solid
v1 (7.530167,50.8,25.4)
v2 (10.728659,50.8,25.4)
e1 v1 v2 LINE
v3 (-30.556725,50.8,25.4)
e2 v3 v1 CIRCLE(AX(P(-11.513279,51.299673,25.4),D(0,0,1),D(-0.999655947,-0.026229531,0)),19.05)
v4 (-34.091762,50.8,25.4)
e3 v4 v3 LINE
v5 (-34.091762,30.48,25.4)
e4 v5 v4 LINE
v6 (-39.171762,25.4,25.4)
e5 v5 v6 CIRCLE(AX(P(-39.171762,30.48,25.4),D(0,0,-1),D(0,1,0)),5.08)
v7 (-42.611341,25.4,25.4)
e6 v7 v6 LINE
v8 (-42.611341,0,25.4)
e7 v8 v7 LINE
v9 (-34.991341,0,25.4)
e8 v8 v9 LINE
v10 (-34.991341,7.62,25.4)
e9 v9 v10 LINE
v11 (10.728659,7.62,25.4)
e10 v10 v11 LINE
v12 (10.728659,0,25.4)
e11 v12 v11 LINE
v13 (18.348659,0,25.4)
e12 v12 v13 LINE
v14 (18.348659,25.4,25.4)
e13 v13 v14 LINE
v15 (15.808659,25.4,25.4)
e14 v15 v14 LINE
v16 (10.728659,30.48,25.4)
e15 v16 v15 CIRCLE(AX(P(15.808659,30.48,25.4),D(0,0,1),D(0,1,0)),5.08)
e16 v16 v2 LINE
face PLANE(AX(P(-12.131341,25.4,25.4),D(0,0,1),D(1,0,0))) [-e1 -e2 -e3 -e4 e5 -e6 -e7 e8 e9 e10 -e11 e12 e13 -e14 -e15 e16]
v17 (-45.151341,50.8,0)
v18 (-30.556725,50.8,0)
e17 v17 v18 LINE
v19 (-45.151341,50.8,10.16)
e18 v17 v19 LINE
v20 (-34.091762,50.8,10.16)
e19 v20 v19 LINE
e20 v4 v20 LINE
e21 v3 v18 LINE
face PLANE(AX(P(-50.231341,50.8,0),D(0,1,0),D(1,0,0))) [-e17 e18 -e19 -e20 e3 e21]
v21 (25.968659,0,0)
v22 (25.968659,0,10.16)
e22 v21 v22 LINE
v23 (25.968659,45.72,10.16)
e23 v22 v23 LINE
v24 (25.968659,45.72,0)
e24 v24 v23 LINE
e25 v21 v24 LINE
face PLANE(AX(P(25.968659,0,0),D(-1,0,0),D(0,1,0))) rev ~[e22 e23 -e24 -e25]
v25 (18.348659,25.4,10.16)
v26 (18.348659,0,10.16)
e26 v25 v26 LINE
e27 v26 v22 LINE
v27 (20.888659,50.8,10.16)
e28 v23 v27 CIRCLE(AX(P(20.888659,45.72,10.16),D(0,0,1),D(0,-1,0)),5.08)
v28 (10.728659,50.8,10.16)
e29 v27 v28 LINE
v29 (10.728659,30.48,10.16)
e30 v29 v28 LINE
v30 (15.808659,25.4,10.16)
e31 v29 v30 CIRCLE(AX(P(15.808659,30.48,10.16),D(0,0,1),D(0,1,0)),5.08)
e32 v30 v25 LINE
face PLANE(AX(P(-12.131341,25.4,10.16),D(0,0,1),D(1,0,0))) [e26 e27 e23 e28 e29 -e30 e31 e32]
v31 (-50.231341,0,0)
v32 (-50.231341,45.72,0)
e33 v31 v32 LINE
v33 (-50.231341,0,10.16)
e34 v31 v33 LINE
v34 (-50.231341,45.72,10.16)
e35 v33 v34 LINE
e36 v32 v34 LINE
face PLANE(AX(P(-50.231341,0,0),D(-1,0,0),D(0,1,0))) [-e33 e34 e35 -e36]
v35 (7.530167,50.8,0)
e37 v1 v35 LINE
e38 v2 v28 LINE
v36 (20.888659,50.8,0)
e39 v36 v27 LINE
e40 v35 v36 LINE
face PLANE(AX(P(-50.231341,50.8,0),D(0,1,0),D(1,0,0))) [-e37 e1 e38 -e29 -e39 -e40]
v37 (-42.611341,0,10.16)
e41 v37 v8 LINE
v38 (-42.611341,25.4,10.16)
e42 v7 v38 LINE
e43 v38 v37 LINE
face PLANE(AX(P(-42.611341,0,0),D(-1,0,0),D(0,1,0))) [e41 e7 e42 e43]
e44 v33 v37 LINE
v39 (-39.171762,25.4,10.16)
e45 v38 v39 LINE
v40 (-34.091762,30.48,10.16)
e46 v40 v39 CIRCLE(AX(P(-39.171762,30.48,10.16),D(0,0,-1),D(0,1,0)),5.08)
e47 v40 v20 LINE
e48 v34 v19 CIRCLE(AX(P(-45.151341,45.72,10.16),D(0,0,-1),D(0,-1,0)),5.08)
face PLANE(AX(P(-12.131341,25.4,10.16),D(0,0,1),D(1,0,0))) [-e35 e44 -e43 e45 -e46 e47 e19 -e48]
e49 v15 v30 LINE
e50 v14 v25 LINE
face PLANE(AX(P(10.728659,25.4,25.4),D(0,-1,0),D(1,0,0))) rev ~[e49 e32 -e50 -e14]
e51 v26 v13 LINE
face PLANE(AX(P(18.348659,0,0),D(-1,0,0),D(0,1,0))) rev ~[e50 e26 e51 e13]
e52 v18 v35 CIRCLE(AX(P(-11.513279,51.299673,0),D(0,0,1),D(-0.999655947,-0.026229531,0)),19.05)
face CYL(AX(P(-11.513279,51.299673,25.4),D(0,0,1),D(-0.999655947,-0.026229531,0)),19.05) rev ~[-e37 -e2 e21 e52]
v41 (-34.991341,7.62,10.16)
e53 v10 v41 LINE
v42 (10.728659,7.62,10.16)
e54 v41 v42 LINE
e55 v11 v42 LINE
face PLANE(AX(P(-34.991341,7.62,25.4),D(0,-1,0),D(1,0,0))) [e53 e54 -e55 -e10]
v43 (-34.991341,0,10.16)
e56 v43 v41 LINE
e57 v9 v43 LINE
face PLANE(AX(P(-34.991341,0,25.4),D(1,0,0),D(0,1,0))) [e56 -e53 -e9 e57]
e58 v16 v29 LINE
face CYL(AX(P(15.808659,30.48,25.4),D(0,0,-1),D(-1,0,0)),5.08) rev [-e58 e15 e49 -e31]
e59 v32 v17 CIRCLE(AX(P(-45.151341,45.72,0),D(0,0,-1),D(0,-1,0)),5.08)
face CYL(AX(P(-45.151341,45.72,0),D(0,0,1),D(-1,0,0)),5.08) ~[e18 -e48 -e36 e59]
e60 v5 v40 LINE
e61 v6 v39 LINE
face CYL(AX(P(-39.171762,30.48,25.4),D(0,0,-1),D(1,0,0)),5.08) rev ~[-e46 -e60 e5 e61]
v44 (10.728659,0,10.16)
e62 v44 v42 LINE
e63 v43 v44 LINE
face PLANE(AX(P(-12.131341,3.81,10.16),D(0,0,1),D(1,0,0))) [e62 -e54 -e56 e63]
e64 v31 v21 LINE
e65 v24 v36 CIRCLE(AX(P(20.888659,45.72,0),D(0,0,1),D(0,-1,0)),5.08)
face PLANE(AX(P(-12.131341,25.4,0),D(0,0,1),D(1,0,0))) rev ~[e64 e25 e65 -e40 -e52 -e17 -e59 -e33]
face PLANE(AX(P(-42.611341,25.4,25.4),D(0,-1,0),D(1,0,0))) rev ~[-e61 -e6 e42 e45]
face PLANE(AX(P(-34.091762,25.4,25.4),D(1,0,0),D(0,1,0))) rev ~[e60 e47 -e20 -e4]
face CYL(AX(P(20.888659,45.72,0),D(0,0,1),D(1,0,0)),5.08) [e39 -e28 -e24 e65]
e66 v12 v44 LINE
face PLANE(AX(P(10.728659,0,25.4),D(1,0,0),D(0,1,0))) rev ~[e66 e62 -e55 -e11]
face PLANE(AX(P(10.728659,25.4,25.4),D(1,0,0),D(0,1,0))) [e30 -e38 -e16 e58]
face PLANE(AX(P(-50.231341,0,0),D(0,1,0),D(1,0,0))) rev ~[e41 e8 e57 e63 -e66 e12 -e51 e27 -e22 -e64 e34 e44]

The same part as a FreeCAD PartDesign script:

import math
import FreeCAD as App
import Part
import Sketcher

V = App.Vector
Q = App.Units.Quantity


def edges_at(feature, points):
    """Names of the edges that pass closest to the given points."""
    edges = feature.Shape.Edges
    near = lambda p: min(range(len(edges)), key=lambda i: edges[i].distToShape(Part.Vertex(*p))[0])
    return sorted({f"Edge{near(p) + 1}" for p in points})

doc = App.newDocument("Part")
params = doc.addObject("Spreadsheet::Sheet", "Params")
for row, (alias, value) in enumerate([
    ("sketch1_width", "3 in"),
    ("sketch1_height", "2 in"),
    ("pad1_length", "0.4 in"),
    ("sketch2_height", "2 in"),
    ("sketch2_width", "2.4 in"),
    ("pad2_length", "1 in"),
    ("sketch3_radius", "0.75 in"),
    ("sketch4_height", "1 in"),
    ("sketch4_width", "0.3 in"),
    ("sketch4_width2", "1.8 in"),
    ("pocket2_length", "0.6 in"),
    ("fillet_radius", "0.2 in"),
    ("fillet2_radius", "0.2 in"),
    ("fillet3_radius", "0.2 in"),
], start=1):
    params.set(f"A{row}", alias)
    params.set(f"B{row}", "=" + value)
    params.setAlias(f"B{row}", alias)

body = doc.addObject("PartDesign::Body", "Body")

sketch1 = doc.addObject("Sketcher::SketchObject", "Sketch")
body.addObject(sketch1)
sketch1.AttachmentSupport = (doc.XY_Plane, [""])
sketch1.MapMode = "FlatFace"
sketch1.addGeometry(Part.LineSegment(V(-50, 51, 0), V(-50, 0, 0)), False)
sketch1.addGeometry(Part.LineSegment(V(-50, 0, 0), V(26, 0, 0)), False)
sketch1.addGeometry(Part.LineSegment(V(26, 0, 0), V(26, 51, 0)), False)
sketch1.addGeometry(Part.LineSegment(V(26, 51, 0), V(-50, 51, 0)), False)
sketch1.addConstraint(Sketcher.Constraint("Coincident", 0, 2, 1, 1))
sketch1.addConstraint(Sketcher.Constraint("Coincident", 1, 2, 2, 1))
sketch1.addConstraint(Sketcher.Constraint("Coincident", 2, 2, 3, 1))
sketch1.addConstraint(Sketcher.Constraint("Coincident", 3, 2, 0, 1))
sketch1.addConstraint(Sketcher.Constraint("Vertical", 0))
sketch1.addConstraint(Sketcher.Constraint("Horizontal", 1))
sketch1.addConstraint(Sketcher.Constraint("Vertical", 2))
sketch1.addConstraint(Sketcher.Constraint("Horizontal", 3))
sketch1.addConstraint(Sketcher.Constraint("PointOnObject", 0, 2, -1))
sketch1.addConstraint(Sketcher.Constraint("DistanceX", 1, 1, 1, 2, Q("3 in")))
sketch1.addConstraint(Sketcher.Constraint("DistanceY", 0, 2, 0, 1, Q("2 in")))
sketch1.addConstraint(Sketcher.Constraint("DistanceX", 0, 2, -1, 1, 50.231341))
sketch1.setExpression("Constraints[9]", "Params.sketch1_width")
sketch1.setExpression("Constraints[10]", "Params.sketch1_height")
pad1 = doc.addObject("PartDesign::Pad", "Pad")
body.addObject(pad1)
pad1.Profile = sketch1
pad1.setExpression("Length", "Params.pad1_length")

sketch2 = doc.addObject("Sketcher::SketchObject", "Sketch001")
body.addObject(sketch2)
sketch2.AttachmentSupport = (doc.XY_Plane, [""])
sketch2.MapMode = "FlatFace"
sketch2.addGeometry(Part.LineSegment(V(-43, 51, 0), V(-43, 0, 0)), False)
sketch2.addGeometry(Part.LineSegment(V(-43, 0, 0), V(18, 0, 0)), False)
sketch2.addGeometry(Part.LineSegment(V(18, 0, 0), V(18, 51, 0)), False)
sketch2.addGeometry(Part.LineSegment(V(18, 51, 0), V(-43, 51, 0)), False)
sketch2.addConstraint(Sketcher.Constraint("Coincident", 0, 2, 1, 1))
sketch2.addConstraint(Sketcher.Constraint("Coincident", 1, 2, 2, 1))
sketch2.addConstraint(Sketcher.Constraint("Coincident", 2, 2, 3, 1))
sketch2.addConstraint(Sketcher.Constraint("Coincident", 3, 2, 0, 1))
sketch2.addConstraint(Sketcher.Constraint("Vertical", 0))
sketch2.addConstraint(Sketcher.Constraint("Horizontal", 1))
sketch2.addConstraint(Sketcher.Constraint("Vertical", 2))
sketch2.addConstraint(Sketcher.Constraint("Horizontal", 3))
sketch2.addConstraint(Sketcher.Constraint("PointOnObject", 0, 2, -1))
sketch2.addConstraint(Sketcher.Constraint("DistanceY", 0, 2, 0, 1, Q("2 in")))
sketch2.addConstraint(Sketcher.Constraint("DistanceX", 1, 1, 1, 2, Q("2.4 in")))
sketch2.addConstraint(Sketcher.Constraint("DistanceX", 0, 2, -1, 1, 42.611341))
sketch2.setExpression("Constraints[9]", "Params.sketch2_height")
sketch2.setExpression("Constraints[10]", "Params.sketch2_width")
pad2 = doc.addObject("PartDesign::Pad", "Pad001")
body.addObject(pad2)
pad2.Profile = sketch2
pad2.setExpression("Length", "Params.pad2_length")

sketch3 = doc.addObject("Sketcher::SketchObject", "Sketch002")
body.addObject(sketch3)
sketch3.AttachmentSupport = (doc.XY_Plane, [""])
sketch3.MapMode = "FlatFace"
sketch3.AttachmentOffset = App.Placement(V(0, 0, 1 * 25.4), App.Rotation())
sketch3.addGeometry(Part.ArcOfCircle(Part.Circle(V(-11.51, 51.3, 0), V(0, 0, 1), 19.05), math.radians(-178), math.radians(-2)), False)
sketch3.addGeometry(Part.ArcOfCircle(Part.Circle(V(-11.51, 51.3, 0), V(0, 0, 1), 19.05), math.radians(-1.5), math.radians(0)), False)
sketch3.addGeometry(Part.ArcOfCircle(Part.Circle(V(-11.51, 51.3, 0), V(0, 0, 1), 19.05), math.radians(0), math.radians(182)), False)
sketch3.addConstraint(Sketcher.Constraint("Tangent", 0, 2, 1, 1))
sketch3.addConstraint(Sketcher.Constraint("Tangent", 1, 2, 2, 1))
sketch3.addConstraint(Sketcher.Constraint("Coincident", 2, 2, 0, 1))
sketch3.addConstraint(Sketcher.Constraint("Equal", 0, 1))
sketch3.addConstraint(Sketcher.Constraint("Horizontal", 2, 3, 1, 2))
sketch3.addConstraint(Sketcher.Constraint("Horizontal", 0, 2, 2, 2))
sketch3.addConstraint(Sketcher.Constraint("Radius", 0, Q("0.75 in")))
sketch3.addConstraint(Sketcher.Constraint("DistanceY", -1, 1, 0, 2, Q("2 in")))
sketch3.addConstraint(Sketcher.Constraint("DistanceX", 0, 3, -1, 1, 11.513279))
sketch3.addConstraint(Sketcher.Constraint("DistanceX", 2, 2, 0, 2, 38.086892))
sketch3.setExpression("Constraints[6]", "Params.sketch3_radius")
pocket1 = doc.addObject("PartDesign::Pocket", "Pocket")
body.addObject(pocket1)
pocket1.Profile = sketch3
pocket1.Type = "ThroughAll"

sketch4 = doc.addObject("Sketcher::SketchObject", "Sketch003")
body.addObject(sketch4)
sketch4.AttachmentSupport = (doc.XY_Plane, [""])
sketch4.MapMode = "FlatFace"
sketch4.AttachmentOffset = App.Placement(V(0, 0, 1 * 25.4), App.Rotation())
sketch4.addGeometry(Part.LineSegment(V(-43, 51, 0), V(-43, 25, 0)), False)
sketch4.addGeometry(Part.LineSegment(V(-43, 25, 0), V(-34, 25, 0)), False)
sketch4.addGeometry(Part.LineSegment(V(-34, 25, 0), V(-34, 51, 0)), False)
sketch4.addGeometry(Part.LineSegment(V(-34, 51, 0), V(-43, 51, 0)), False)
sketch4.addGeometry(Part.LineSegment(V(11, 51, 0), V(11, 25, 0)), False)
sketch4.addGeometry(Part.LineSegment(V(11, 25, 0), V(18, 25, 0)), False)
sketch4.addGeometry(Part.LineSegment(V(18, 25, 0), V(18, 51, 0)), False)
sketch4.addGeometry(Part.LineSegment(V(18, 51, 0), V(11, 51, 0)), False)
sketch4.addGeometry(Part.LineSegment(V(-35, 8, 0), V(-35, 0, 0)), False)
sketch4.addGeometry(Part.LineSegment(V(-35, 0, 0), V(11, 0, 0)), False)
sketch4.addGeometry(Part.LineSegment(V(11, 0, 0), V(11, 8, 0)), False)
sketch4.addGeometry(Part.LineSegment(V(11, 8, 0), V(-35, 8, 0)), False)
sketch4.addConstraint(Sketcher.Constraint("Coincident", 0, 2, 1, 1))
sketch4.addConstraint(Sketcher.Constraint("Coincident", 1, 2, 2, 1))
sketch4.addConstraint(Sketcher.Constraint("Coincident", 2, 2, 3, 1))
sketch4.addConstraint(Sketcher.Constraint("Coincident", 3, 2, 0, 1))
sketch4.addConstraint(Sketcher.Constraint("Coincident", 4, 2, 5, 1))
sketch4.addConstraint(Sketcher.Constraint("Coincident", 5, 2, 6, 1))
sketch4.addConstraint(Sketcher.Constraint("Coincident", 6, 2, 7, 1))
sketch4.addConstraint(Sketcher.Constraint("Coincident", 7, 2, 4, 1))
sketch4.addConstraint(Sketcher.Constraint("Coincident", 8, 2, 9, 1))
sketch4.addConstraint(Sketcher.Constraint("Coincident", 9, 2, 10, 1))
sketch4.addConstraint(Sketcher.Constraint("Coincident", 10, 2, 11, 1))
sketch4.addConstraint(Sketcher.Constraint("Coincident", 11, 2, 8, 1))
sketch4.addConstraint(Sketcher.Constraint("Vertical", 0))
sketch4.addConstraint(Sketcher.Constraint("Horizontal", 1))
sketch4.addConstraint(Sketcher.Constraint("Vertical", 2))
sketch4.addConstraint(Sketcher.Constraint("Horizontal", 3))
sketch4.addConstraint(Sketcher.Constraint("Vertical", 4))
sketch4.addConstraint(Sketcher.Constraint("Horizontal", 5))
sketch4.addConstraint(Sketcher.Constraint("Vertical", 6))
sketch4.addConstraint(Sketcher.Constraint("Horizontal", 7))
sketch4.addConstraint(Sketcher.Constraint("Vertical", 8))
sketch4.addConstraint(Sketcher.Constraint("Horizontal", 9))
sketch4.addConstraint(Sketcher.Constraint("Vertical", 10))
sketch4.addConstraint(Sketcher.Constraint("Horizontal", 11))
sketch4.addConstraint(Sketcher.Constraint("PointOnObject", 8, 2, -1))
sketch4.addConstraint(Sketcher.Constraint("Horizontal", 1, 2, 4, 2))
sketch4.addConstraint(Sketcher.Constraint("Horizontal", 3, 2, 6, 2))
sketch4.addConstraint(Sketcher.Constraint("Vertical", 7, 2, 9, 2))
sketch4.addConstraint(Sketcher.Constraint("Equal", 7, 8))
sketch4.addConstraint(Sketcher.Constraint("DistanceY", 0, 2, 0, 1, Q("1 in")))
sketch4.addConstraint(Sketcher.Constraint("DistanceX", 5, 1, 5, 2, Q("0.3 in")))
sketch4.addConstraint(Sketcher.Constraint("DistanceX", 9, 1, 9, 2, Q("1.8 in")))
sketch4.addConstraint(Sketcher.Constraint("DistanceY", -1, 1, 0, 2, Q("1 in")))
sketch4.addConstraint(Sketcher.Constraint("DistanceX", 0, 2, 4, 2, Q("2.1 in")))
sketch4.addConstraint(Sketcher.Constraint("DistanceX", 1, 1, 1, 2, 8.519579))
sketch4.addConstraint(Sketcher.Constraint("DistanceX", 0, 2, -1, 1, 42.611341))
sketch4.setExpression("Constraints[29]", "Params.sketch4_height")
sketch4.setExpression("Constraints[30]", "Params.sketch4_width")
sketch4.setExpression("Constraints[31]", "Params.sketch4_width2")
pocket2 = doc.addObject("PartDesign::Pocket", "Pocket001")
body.addObject(pocket2)
pocket2.Profile = sketch4
pocket2.setExpression("Length", "Params.pocket2_length")
doc.recompute()

fillet = doc.addObject("PartDesign::Fillet", "Fillet")
body.addObject(fillet)
fillet.Base = (pocket2, edges_at(pocket2, [(-50.231, 50.8, 5.08)]))
fillet.setExpression("Radius", "Params.fillet_radius")
doc.recompute()

fillet2 = doc.addObject("PartDesign::Fillet", "Fillet001")
body.addObject(fillet2)
fillet2.Base = (fillet, edges_at(fillet, [(25.969, 50.8, 5.08)]))
fillet2.setExpression("Radius", "Params.fillet2_radius")
doc.recompute()

fillet3 = doc.addObject("PartDesign::Fillet", "Fillet002")
body.addObject(fillet3)
fillet3.Base = (fillet2, edges_at(fillet2, [(-34.092, 25.4, 17.78), (10.729, 25.4, 17.78)]))
fillet3.setExpression("Radius", "Params.fillet3_radius")

doc.recompute()
